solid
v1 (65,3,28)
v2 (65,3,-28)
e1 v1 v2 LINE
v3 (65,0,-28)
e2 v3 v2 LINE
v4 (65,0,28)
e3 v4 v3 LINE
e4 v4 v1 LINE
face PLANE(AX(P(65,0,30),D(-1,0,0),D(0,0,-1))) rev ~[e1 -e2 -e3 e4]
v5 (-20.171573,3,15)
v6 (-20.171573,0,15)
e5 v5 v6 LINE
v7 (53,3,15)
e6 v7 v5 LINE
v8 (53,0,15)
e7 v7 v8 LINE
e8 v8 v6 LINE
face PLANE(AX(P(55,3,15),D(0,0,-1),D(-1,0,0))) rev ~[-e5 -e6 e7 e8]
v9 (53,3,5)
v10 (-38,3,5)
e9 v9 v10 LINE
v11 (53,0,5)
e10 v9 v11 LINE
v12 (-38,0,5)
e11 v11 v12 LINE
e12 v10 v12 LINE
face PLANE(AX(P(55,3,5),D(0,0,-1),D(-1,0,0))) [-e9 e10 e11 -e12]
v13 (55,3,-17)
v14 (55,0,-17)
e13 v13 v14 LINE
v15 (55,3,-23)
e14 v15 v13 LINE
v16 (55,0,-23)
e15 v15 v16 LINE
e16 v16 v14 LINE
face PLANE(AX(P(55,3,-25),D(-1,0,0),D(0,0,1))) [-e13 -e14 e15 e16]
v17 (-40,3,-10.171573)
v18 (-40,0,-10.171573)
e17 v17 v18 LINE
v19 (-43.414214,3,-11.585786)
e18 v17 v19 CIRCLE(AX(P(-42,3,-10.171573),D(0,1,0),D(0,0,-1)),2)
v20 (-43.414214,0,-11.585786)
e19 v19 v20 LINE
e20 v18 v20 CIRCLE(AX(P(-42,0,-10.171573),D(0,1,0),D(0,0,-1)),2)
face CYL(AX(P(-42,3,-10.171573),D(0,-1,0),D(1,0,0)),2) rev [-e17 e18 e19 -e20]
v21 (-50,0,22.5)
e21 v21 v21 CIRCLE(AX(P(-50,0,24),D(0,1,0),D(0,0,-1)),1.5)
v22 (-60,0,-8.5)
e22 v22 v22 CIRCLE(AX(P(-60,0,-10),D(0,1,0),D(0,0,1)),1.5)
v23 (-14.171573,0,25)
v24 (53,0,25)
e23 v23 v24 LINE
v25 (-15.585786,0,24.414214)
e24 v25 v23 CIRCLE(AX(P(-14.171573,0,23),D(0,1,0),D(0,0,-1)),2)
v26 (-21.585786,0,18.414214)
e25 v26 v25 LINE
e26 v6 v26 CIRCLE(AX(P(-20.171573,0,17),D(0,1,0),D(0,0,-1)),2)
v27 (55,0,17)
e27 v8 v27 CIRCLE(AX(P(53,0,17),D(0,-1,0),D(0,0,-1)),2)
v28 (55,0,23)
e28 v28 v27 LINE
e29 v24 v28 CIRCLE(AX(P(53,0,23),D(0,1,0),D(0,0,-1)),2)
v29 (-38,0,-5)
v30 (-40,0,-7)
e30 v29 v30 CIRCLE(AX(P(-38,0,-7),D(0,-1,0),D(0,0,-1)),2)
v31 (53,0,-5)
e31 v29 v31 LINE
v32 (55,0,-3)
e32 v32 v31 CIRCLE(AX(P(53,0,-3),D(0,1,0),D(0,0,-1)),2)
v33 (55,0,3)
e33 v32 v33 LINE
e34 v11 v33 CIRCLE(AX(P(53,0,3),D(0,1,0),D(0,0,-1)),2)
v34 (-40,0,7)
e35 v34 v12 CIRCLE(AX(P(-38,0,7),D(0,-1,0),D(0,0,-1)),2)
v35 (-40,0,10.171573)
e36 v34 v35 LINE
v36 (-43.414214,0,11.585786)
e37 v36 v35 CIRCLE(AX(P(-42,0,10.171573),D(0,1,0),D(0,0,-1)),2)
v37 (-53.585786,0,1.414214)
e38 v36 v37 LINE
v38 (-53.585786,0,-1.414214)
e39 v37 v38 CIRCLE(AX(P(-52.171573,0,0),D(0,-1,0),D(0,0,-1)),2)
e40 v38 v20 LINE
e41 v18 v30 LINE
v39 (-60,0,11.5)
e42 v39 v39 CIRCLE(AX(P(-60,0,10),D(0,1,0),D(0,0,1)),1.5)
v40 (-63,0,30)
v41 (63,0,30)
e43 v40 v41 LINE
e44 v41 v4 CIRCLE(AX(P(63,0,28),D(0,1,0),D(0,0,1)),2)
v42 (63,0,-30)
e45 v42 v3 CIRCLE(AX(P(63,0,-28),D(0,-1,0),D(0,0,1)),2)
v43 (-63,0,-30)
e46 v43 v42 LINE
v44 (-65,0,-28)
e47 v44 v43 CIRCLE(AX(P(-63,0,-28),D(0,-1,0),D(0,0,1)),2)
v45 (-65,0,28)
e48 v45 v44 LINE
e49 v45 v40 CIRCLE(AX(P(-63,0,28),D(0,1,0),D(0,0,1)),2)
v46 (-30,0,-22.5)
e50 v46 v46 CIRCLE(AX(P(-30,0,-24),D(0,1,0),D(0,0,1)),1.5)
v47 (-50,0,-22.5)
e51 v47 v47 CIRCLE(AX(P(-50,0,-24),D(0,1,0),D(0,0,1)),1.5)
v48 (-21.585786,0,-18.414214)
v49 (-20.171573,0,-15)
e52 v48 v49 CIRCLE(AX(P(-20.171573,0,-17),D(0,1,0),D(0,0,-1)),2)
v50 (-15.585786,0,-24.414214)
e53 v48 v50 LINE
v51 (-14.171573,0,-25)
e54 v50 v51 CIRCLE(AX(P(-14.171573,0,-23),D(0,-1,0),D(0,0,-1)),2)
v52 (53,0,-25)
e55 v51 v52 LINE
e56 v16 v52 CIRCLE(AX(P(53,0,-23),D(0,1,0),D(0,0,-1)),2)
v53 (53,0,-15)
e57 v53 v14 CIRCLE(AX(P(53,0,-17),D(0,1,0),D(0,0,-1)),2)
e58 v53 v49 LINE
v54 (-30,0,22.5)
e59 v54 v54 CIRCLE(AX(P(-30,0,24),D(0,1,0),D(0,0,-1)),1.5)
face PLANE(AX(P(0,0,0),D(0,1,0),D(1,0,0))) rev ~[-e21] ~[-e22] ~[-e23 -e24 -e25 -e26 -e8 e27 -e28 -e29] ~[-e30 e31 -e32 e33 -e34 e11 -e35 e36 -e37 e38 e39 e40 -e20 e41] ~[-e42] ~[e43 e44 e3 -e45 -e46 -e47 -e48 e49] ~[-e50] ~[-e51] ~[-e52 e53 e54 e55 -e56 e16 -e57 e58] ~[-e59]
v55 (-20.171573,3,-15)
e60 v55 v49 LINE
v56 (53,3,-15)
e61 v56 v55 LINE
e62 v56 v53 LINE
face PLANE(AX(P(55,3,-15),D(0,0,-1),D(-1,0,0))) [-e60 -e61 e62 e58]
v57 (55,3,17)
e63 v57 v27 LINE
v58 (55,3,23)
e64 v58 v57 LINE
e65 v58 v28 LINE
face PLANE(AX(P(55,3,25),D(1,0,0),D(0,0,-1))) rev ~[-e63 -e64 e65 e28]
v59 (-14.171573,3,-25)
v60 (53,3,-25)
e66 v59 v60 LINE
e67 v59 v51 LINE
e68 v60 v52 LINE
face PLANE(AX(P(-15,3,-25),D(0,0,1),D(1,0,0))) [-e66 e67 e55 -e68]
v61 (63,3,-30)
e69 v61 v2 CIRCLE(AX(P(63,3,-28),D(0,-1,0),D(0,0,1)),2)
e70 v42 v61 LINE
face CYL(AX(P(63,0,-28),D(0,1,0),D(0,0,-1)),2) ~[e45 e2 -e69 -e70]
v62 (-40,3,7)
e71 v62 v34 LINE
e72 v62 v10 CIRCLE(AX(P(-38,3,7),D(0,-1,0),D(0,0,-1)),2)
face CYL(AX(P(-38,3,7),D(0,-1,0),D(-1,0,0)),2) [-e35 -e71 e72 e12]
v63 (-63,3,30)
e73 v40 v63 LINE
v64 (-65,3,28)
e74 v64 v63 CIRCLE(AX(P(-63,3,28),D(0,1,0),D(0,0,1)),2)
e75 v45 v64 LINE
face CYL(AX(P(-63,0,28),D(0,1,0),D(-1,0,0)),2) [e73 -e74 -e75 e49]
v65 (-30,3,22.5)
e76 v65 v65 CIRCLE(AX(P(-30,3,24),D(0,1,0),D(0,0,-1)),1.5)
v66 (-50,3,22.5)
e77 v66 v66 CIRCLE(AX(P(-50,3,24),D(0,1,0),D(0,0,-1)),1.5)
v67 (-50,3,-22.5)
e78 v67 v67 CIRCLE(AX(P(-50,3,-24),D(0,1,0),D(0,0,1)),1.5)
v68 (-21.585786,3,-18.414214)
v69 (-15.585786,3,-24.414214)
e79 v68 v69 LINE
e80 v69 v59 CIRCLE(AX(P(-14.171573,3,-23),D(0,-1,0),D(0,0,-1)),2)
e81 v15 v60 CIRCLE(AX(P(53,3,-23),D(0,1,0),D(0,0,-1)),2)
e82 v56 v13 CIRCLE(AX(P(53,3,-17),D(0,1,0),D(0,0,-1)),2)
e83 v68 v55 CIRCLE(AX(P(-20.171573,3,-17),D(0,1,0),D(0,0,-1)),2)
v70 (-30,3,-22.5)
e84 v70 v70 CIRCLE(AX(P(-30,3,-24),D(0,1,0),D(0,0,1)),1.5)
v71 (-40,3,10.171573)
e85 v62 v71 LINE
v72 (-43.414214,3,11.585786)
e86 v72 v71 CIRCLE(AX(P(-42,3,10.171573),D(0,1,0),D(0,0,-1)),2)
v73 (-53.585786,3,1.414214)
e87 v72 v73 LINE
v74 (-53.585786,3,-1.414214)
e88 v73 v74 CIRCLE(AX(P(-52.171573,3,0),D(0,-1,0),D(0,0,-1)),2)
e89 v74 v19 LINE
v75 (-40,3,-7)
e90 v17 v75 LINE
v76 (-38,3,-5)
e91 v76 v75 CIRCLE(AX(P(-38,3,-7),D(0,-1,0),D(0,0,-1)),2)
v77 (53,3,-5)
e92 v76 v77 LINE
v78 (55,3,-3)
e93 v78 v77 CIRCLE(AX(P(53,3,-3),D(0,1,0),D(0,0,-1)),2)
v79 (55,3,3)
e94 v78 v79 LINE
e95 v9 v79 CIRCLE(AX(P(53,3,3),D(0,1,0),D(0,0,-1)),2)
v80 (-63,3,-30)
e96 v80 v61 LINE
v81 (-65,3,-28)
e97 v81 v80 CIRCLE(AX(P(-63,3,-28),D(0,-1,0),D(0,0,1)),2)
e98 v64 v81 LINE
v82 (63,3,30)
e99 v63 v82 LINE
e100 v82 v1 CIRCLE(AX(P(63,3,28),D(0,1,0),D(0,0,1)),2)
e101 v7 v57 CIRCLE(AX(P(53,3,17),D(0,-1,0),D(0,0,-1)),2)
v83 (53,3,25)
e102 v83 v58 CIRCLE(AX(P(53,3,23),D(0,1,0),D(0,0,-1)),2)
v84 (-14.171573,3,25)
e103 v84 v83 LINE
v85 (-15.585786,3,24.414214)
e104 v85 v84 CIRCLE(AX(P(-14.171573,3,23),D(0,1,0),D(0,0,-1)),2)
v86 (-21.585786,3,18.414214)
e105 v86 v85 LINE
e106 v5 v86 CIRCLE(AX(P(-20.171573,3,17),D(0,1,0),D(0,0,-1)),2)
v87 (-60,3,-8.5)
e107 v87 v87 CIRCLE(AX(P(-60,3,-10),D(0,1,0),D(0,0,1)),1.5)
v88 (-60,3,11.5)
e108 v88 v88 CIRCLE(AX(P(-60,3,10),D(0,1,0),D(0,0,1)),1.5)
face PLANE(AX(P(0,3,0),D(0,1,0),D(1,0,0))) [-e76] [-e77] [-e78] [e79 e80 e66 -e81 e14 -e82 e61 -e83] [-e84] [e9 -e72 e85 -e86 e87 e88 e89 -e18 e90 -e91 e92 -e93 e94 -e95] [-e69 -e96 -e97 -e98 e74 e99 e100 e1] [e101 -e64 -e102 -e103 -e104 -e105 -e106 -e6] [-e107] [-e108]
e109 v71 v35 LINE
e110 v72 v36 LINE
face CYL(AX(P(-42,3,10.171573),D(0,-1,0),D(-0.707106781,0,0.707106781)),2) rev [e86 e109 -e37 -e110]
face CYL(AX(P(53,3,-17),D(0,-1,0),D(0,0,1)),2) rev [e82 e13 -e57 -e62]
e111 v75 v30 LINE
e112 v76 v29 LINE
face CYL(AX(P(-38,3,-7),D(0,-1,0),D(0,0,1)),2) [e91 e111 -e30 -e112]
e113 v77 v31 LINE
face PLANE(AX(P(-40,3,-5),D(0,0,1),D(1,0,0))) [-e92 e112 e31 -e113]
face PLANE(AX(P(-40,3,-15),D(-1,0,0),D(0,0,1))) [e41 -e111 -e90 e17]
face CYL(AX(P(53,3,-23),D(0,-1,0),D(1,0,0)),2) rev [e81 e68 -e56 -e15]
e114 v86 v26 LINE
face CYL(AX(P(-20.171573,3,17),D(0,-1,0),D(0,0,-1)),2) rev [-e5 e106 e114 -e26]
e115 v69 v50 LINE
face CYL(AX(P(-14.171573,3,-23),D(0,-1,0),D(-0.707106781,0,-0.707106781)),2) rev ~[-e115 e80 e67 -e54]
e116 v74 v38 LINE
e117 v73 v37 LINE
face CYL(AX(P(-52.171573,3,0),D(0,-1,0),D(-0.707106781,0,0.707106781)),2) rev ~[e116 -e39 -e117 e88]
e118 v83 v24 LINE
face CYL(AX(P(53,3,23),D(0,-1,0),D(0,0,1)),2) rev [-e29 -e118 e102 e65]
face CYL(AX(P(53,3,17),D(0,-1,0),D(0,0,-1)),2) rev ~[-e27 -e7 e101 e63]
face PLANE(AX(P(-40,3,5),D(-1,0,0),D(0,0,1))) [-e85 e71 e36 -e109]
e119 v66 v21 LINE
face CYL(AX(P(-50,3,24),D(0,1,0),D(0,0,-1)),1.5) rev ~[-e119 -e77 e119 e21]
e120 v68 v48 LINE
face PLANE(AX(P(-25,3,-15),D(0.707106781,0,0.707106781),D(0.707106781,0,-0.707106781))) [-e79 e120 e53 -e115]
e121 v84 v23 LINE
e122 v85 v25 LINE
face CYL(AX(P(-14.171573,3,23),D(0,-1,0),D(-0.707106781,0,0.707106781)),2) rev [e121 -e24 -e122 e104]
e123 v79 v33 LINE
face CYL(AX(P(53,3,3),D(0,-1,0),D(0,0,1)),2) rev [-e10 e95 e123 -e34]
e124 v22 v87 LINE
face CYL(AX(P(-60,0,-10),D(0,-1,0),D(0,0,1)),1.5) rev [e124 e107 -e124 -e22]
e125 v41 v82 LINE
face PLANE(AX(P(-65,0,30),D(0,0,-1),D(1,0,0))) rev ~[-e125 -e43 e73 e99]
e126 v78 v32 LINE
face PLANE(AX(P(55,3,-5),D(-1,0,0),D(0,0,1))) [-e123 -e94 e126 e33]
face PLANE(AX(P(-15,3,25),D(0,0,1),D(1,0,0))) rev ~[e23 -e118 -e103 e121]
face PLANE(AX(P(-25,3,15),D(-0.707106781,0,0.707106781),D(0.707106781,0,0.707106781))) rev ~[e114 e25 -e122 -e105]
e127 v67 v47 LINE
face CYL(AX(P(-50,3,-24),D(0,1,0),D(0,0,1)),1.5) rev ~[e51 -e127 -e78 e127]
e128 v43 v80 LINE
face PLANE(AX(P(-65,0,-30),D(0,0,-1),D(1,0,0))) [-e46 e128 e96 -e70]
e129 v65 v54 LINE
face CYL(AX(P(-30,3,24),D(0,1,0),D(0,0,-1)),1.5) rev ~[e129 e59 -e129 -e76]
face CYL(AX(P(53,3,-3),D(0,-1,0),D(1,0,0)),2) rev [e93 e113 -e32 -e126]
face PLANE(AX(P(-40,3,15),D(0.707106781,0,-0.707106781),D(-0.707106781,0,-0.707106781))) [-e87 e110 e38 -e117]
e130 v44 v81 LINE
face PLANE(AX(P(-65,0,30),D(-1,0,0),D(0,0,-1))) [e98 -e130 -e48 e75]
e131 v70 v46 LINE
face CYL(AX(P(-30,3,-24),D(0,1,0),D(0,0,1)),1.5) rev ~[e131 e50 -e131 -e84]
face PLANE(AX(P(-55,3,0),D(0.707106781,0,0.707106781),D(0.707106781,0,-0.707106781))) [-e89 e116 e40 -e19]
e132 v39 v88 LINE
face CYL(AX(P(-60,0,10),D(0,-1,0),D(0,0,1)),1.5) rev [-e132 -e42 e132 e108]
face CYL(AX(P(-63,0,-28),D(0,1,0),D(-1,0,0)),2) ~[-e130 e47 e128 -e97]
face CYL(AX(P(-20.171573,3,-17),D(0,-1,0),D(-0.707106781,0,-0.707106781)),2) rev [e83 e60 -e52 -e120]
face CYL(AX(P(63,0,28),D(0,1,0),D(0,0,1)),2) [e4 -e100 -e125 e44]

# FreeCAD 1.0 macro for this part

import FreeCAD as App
import Part
import Sketcher

V = App.Vector


def edges_at(feature, points):
    """Names of the edges that pass closest to the given points."""
    edges = feature.Shape.Edges
    near = lambda p: min(range(len(edges)), key=lambda i: edges[i].distToShape(Part.Vertex(*p))[0])
    return sorted({f"Edge{near(p) + 1}" for p in points})


def add_polygon(sketch, points):
    """Adds a closed chain of lines whose ends are joined by coincident constraints."""
    first, n = sketch.GeometryCount, len(points)
    for a, b in zip(points, points[1:] + points[:1]):
        sketch.addGeometry(Part.LineSegment(App.Vector(*a, 0), App.Vector(*b, 0)), False)
    for i in range(n):
        sketch.addConstraint(Sketcher.Constraint("Coincident", first + i, 2, first + (i + 1) % n, 1))

doc = App.newDocument("Part")
body = doc.addObject("PartDesign::Body", "Body")

# Sketch on XZ plane
sketch1 = body.newObject("Sketcher::SketchObject", "Sketch")
sketch1.AttachmentSupport = (doc.getObject("XZ_Plane"), [""])
sketch1.MapMode = "FlatFace"
add_polygon(sketch1, [(-65, -30), (-65, 30), (65, 30), (65, -30)])  # lines 0-3
sketch1.addGeometry(Part.Circle(V(-60, 10, 0), V(0, 0, 1), 1.5), False)  # 4
sketch1.addGeometry(Part.Circle(V(-60, -10, 0), V(0, 0, 1), 1.5), False)  # 5
sketch1.addConstraint([
    Sketcher.Constraint("Vertical", 0),
    Sketcher.Constraint("Horizontal", 1),
    Sketcher.Constraint("Vertical", 2),
    Sketcher.Constraint("Horizontal", 3),
    Sketcher.Constraint("Equal", 4, 5),
    Sketcher.Constraint("Symmetric", 0, 2, 2, 2, -1, 1),
    Sketcher.Constraint("Symmetric", 4, 3, 5, 3, -1),
    Sketcher.Constraint("Diameter", 4, 3.0),
    Sketcher.Constraint("DistanceX", 1, 1, 1, 2, 130.0),
    Sketcher.Constraint("DistanceY", 0, 1, 0, 2, 60.0),
    Sketcher.Constraint("DistanceX", 4, 3, -1, 1, 60.0),
    Sketcher.Constraint("DistanceY", -1, 1, 4, 3, 10.0),
])
pad1 = body.newObject("PartDesign::Pad", "Pad")
pad1.Profile = sketch1
pad1.Length = 3
pad1.Reversed = True

# Sketch on XZ plane
sketch2 = body.newObject("Sketcher::SketchObject", "Sketch001")
sketch2.AttachmentSupport = (doc.getObject("XZ_Plane"), [""])
sketch2.MapMode = "FlatFace"
sketch2.AttachmentOffset = App.Placement(V(0, 0, -3), App.Rotation())
sketch2.addGeometry([
    Part.Circle(V(-30, -24, 0), V(0, 0, 1), 1.5),
    Part.Circle(V(-50, -24, 0), V(0, 0, 1), 1.5),
    Part.Circle(V(-50, 24, 0), V(0, 0, 1), 1.5),
    Part.Circle(V(-30, 24, 0), V(0, 0, 1), 1.5),
], False)
sketch2.addConstraint([
    Sketcher.Constraint("Equal", 0, 1),
    Sketcher.Constraint("Equal", 1, 2),
    Sketcher.Constraint("Equal", 2, 3),
    Sketcher.Constraint("Symmetric", 1, 3, 2, 3, -1),
    Sketcher.Constraint("Symmetric", 0, 3, 3, 3, -1),
    Sketcher.Constraint("Horizontal", 0, 3, 1, 3),
    Sketcher.Constraint("Diameter", 0, 3.0),
    Sketcher.Constraint("DistanceX", 0, 3, -1, 1, 30.0),
    Sketcher.Constraint("DistanceY", 0, 3, -1, 1, 24.0),
    Sketcher.Constraint("DistanceX", 1, 3, -1, 1, 50.0),
])
pocket1 = body.newObject("PartDesign::Pocket", "Pocket")
pocket1.Profile = sketch2
pocket1.Type = "ThroughAll"
pocket1.Reversed = True

# Sketch on XZ plane
sketch3 = body.newObject("Sketcher::SketchObject", "Sketch002")
sketch3.AttachmentSupport = (doc.getObject("XZ_Plane"), [""])
sketch3.MapMode = "FlatFace"
sketch3.AttachmentOffset = App.Placement(V(0, 0, -3), App.Rotation())
add_polygon(sketch3, [(-40, -15), (-55, 0), (-40, 15), (-40, 5), (55, 5), (55, -5), (-40, -5)])  # lines 0-6
add_polygon(sketch3, [(55, -25), (-15, -25), (-25, -15), (55, -15)])  # lines 7-10
add_polygon(sketch3, [(55, 15), (-25, 15), (-15, 25), (55, 25)])  # lines 11-14
sketch3.addConstraint([
    Sketcher.Constraint("Vertical", 2),
    Sketcher.Constraint("Horizontal", 3),
    Sketcher.Constraint("Vertical", 4),
    Sketcher.Constraint("Horizontal", 5),
    Sketcher.Constraint("Vertical", 6),
    Sketcher.Constraint("Horizontal", 7),
    Sketcher.Constraint("Horizontal", 9),
    Sketcher.Constraint("Vertical", 10),
    Sketcher.Constraint("Horizontal", 11),
    Sketcher.Constraint("Horizontal", 13),
    Sketcher.Constraint("Vertical", 14),
    Sketcher.Constraint("Symmetric", 2, 2, 5, 2, -1),
    Sketcher.Constraint("Symmetric", 8, 2, 11, 2, -1),
    Sketcher.Constraint("Symmetric", 7, 2, 12, 2, -1),
    Sketcher.Constraint("PointOnObject", 0, 2, -1),
    Sketcher.Constraint("Perpendicular", 0, 1),
    Sketcher.Constraint("Perpendicular", 1, 8),
    Sketcher.Constraint("Perpendicular", 8, 12),
    Sketcher.Constraint("Horizontal", 6, 2, 8, 2),
    Sketcher.Constraint("Vertical", 4, 2, 9, 2),
    Sketcher.Constraint("Vertical", 10, 2, 13, 2),
    Sketcher.Constraint("Equal", 2, 4),
    Sketcher.Constraint("Equal", 6, 10),
    Sketcher.Constraint("DistanceX", 3, 1, 3, 2, 95.0),
    Sketcher.Constraint("DistanceX", 7, 2, 7, 1, 70.0),
    Sketcher.Constraint("DistanceX", 9, 1, 9, 2, 80.0),
    Sketcher.Constraint("DistanceX", 0, 2, -1, 1, 55.0),
])
pocket2 = body.newObject("PartDesign::Pocket", "Pocket001")
pocket2.Profile = sketch3
pocket2.Type = "ThroughAll"
pocket2.Reversed = True
doc.recompute()

fillet = body.newObject("PartDesign::Fillet", "Fillet")
fillet.Base = (pocket2, edges_at(pocket2, [
    (55, 1.5, 15),
    (55, 1.5, 25),
    (-15, 1.5, 25),
    (-25, 1.5, 15),
    (-25, 1.5, -15),
    (-15, 1.5, -25),
    (55, 1.5, -25),
    (55, 1.5, -15),
    (-40, 1.5, 15),
    (-55, 1.5, 0),
    (-40, 1.5, -15),
    (-40, 1.5, -5),
    (55, 1.5, -5),
    (55, 1.5, 5),
    (-40, 1.5, 5),
    (65, 1.5, 30),
    (-65, 1.5, 30),
    (-65, 1.5, -30),
    (65, 1.5, -30),
]))
fillet.Radius = 2

doc.recompute()
